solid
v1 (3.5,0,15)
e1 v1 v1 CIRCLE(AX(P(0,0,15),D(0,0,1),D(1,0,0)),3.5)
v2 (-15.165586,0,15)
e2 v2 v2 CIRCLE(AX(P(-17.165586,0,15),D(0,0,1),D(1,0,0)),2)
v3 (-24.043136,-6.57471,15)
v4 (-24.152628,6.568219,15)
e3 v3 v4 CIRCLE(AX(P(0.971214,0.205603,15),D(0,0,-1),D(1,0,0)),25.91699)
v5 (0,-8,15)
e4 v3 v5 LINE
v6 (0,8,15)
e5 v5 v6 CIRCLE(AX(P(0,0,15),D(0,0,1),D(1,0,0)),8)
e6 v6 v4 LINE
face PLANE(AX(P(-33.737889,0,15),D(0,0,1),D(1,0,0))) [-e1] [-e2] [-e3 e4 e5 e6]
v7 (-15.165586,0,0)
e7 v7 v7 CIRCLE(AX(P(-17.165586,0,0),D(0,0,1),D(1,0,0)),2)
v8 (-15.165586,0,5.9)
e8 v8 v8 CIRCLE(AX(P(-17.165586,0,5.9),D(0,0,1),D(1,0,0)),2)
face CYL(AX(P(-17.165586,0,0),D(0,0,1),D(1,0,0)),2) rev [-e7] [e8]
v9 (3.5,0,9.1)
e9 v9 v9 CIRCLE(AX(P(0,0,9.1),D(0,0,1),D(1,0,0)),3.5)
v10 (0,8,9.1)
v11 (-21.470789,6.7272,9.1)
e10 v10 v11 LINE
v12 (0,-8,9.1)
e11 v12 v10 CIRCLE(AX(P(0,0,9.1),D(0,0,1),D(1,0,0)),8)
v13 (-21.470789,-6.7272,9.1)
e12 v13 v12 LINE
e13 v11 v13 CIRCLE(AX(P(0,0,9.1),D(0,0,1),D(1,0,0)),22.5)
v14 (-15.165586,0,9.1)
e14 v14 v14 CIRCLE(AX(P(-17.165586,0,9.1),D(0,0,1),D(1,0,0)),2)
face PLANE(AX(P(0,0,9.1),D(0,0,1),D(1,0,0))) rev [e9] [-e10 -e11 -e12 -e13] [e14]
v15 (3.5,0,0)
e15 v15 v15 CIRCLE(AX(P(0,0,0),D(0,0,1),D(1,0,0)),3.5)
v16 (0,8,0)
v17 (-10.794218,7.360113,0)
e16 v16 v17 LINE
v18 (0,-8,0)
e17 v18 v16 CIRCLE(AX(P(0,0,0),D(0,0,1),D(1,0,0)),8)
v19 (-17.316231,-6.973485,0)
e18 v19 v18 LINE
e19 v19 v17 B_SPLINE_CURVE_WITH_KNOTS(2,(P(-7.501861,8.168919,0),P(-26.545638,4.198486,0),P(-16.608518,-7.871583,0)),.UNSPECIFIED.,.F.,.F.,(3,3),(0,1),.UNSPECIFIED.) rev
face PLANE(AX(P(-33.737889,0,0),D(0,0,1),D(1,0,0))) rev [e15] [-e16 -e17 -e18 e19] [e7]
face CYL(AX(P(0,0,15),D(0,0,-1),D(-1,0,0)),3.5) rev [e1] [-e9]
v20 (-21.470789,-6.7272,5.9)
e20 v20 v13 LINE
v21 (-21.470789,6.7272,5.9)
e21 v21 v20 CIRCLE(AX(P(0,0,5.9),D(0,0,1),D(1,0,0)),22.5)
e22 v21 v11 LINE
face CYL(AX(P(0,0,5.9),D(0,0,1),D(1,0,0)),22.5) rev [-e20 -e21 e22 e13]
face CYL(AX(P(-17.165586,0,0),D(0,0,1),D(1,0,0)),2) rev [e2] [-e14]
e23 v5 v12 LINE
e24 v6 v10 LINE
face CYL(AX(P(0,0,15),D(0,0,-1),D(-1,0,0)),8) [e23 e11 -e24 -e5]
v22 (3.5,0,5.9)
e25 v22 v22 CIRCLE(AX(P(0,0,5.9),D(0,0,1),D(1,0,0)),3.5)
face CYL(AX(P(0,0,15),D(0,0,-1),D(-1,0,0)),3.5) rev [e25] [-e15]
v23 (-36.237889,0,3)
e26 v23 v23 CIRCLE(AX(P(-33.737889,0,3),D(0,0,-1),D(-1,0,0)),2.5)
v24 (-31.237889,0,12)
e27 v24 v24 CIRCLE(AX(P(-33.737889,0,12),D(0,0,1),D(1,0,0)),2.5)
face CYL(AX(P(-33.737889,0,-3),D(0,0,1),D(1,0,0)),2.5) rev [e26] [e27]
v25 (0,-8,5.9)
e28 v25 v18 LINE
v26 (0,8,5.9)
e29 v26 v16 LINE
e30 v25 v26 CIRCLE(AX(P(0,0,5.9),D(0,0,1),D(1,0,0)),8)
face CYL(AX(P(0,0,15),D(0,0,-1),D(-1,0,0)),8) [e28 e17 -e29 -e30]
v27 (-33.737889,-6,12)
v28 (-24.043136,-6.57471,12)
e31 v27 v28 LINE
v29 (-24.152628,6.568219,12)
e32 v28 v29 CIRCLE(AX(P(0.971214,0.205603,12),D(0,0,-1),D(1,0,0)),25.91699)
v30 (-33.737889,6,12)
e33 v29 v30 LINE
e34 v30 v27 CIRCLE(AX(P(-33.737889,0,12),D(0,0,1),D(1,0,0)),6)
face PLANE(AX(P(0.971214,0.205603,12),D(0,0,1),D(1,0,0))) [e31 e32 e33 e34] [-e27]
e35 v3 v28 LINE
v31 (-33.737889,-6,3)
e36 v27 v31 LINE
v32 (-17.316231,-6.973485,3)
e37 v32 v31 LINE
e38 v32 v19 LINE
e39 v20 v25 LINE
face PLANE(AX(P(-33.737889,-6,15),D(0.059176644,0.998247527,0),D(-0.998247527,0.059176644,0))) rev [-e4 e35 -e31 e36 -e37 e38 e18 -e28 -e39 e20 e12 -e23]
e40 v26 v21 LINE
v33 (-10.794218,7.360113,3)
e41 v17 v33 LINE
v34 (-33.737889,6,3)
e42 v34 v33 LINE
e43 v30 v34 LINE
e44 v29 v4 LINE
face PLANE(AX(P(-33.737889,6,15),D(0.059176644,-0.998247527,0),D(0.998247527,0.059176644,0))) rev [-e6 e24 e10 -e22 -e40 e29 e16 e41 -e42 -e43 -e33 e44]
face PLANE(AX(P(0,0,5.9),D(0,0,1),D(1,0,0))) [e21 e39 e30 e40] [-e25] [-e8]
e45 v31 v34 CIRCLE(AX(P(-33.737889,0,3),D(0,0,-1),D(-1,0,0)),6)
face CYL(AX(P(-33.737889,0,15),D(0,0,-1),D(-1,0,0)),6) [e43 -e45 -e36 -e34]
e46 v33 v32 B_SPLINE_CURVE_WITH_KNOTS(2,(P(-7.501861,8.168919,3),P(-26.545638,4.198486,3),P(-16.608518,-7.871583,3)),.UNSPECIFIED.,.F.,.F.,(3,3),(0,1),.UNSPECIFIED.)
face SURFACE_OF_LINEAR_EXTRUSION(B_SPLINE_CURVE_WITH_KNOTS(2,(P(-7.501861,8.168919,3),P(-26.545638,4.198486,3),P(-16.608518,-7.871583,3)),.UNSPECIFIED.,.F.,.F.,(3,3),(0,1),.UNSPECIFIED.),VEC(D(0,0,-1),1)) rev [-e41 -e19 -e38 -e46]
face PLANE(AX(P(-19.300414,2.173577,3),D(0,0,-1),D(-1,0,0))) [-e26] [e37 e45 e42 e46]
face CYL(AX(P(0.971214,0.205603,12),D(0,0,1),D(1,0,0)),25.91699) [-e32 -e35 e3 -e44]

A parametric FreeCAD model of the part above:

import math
import FreeCAD as App
import Part
import Sketcher

V = App.Vector

doc = App.newDocument("Part")
body = doc.addObject("PartDesign::Body", "Body")

# Sketch on XY plane
sketch1 = body.newObject("Sketcher::SketchObject", "Sketch")
sketch1.AttachmentSupport = (doc.getObject("XY_Plane"), [""])
sketch1.MapMode = "FlatFace"
sketch1.addGeometry([
    Part.LineSegment(V(0, 8, 0), V(-33.7, 6, 0)),  # 0
    Part.ArcOfCircle(Part.Circle(V(-33.7, 0, 0), V(0, 0, 1), 6), math.radians(90), math.radians(270)),  # 1
    Part.LineSegment(V(-33.7, -6, 0), V(0, -8, 0)),  # 2
    Part.ArcOfCircle(Part.Circle(V(0, 0, 0), V(0, 0, 1), 8), math.radians(-90), math.radians(90)),  # 3
    Part.Circle(V(0, 0, 0), V(0, 0, 1), 3.5),  # 4
], False)
sketch1.addConstraint([
    Sketcher.Constraint("Coincident", 0, 2, 1, 1),
    Sketcher.Constraint("Coincident", 1, 2, 2, 1),
    Sketcher.Constraint("Coincident", 2, 2, 3, 1),
    Sketcher.Constraint("Coincident", 3, 2, 0, 1),
    Sketcher.Constraint("Coincident", 3, 3, -1, 1),
    Sketcher.Constraint("Coincident", 4, 3, -1, 1),
    Sketcher.Constraint("Symmetric", 0, 2, 1, 2, -1),
    Sketcher.Constraint("PointOnObject", 2, 2, -2),
    Sketcher.Constraint("PointOnObject", 3, 2, -2),
    Sketcher.Constraint("Vertical", 1, 3, 0, 2),
    Sketcher.Constraint("Diameter", 4, 7.0),
    Sketcher.Constraint("Radius", 1, 6.0),
    Sketcher.Constraint("Radius", 3, 8.0),
    Sketcher.Constraint("DistanceX", 1, 3, -1, 1, 33.737889),
])
pad1 = body.newObject("PartDesign::Pad", "Pad")
pad1.Profile = sketch1
pad1.Length = 15

# Sketch on XY plane
sketch2 = body.newObject("Sketcher::SketchObject", "Sketch001")
sketch2.AttachmentSupport = (doc.getObject("XY_Plane"), [""])
sketch2.MapMode = "FlatFace"
sketch2.AttachmentOffset = App.Placement(V(0, 0, 9.1), App.Rotation())
sketch2.addGeometry([
    Part.LineSegment(V(-0.6, 8, 0), V(-21.5, 6.7, 0)),  # 0
    Part.ArcOfCircle(Part.Circle(V(0, 0, 0), V(0, 0, 1), 22.5), math.radians(163), math.radians(197)),  # 1
    Part.LineSegment(V(-21.5, -6.7, 0), V(-0.6, -8, 0)),  # 2
    Part.LineSegment(V(-0.6, -8, 0), V(-0.6, -11.6, 0)),  # 3
    Part.LineSegment(V(-0.6, -11.6, 0), V(11.5, -11.6, 0)),  # 4
    Part.LineSegment(V(11.5, -11.6, 0), V(11.5, 12.5, 0)),  # 5
    Part.LineSegment(V(11.5, 12.5, 0), V(-0.6, 12.5, 0)),  # 6
    Part.LineSegment(V(-0.6, 12.5, 0), V(-0.6, 8, 0)),  # 7
], False)
sketch2.addConstraint([
    Sketcher.Constraint("Coincident", 0, 2, 1, 1),
    Sketcher.Constraint("Coincident", 1, 2, 2, 1),
    Sketcher.Constraint("Coincident", 2, 2, 3, 1),
    Sketcher.Constraint("Coincident", 3, 2, 4, 1),
    Sketcher.Constraint("Coincident", 4, 2, 5, 1),
    Sketcher.Constraint("Coincident", 5, 2, 6, 1),
    Sketcher.Constraint("Coincident", 6, 2, 7, 1),
    Sketcher.Constraint("Coincident", 7, 2, 0, 1),
    Sketcher.Constraint("Vertical", 3),
    Sketcher.Constraint("Horizontal", 4),
    Sketcher.Constraint("Vertical", 5),
    Sketcher.Constraint("Horizontal", 6),
    Sketcher.Constraint("Vertical", 7),
    Sketcher.Constraint("Coincident", 1, 3, -1, 1),
    Sketcher.Constraint("Symmetric", 2, 2, 7, 2, -1),
    Sketcher.Constraint("Vertical", 0, 2, 1, 2),
    Sketcher.Constraint("Radius", 1, 22.5),
    Sketcher.Constraint("DistanceY", 5, 1, 5, 2, 24.048362),
    Sketcher.Constraint("DistanceY", -1, 1, 0, 2, 6.7272),
    Sketcher.Constraint("DistanceY", 2, 2, -1, 1, 7.973601),
    Sketcher.Constraint("DistanceX", 4, 1, 4, 2, 12.181053),
    Sketcher.Constraint("DistanceY", 3, 2, 3, 1, 3.609986),
    Sketcher.Constraint("Distance", 0, 20.858685),
])
pocket1 = body.newObject("PartDesign::Pocket", "Pocket")
pocket1.Profile = sketch2
pocket1.Length = 3.2

# Sketch on XY plane
sketch3 = body.newObject("Sketcher::SketchObject", "Sketch002")
sketch3.AttachmentSupport = (doc.getObject("XY_Plane"), [""])
sketch3.MapMode = "FlatFace"
sketch3.AttachmentOffset = App.Placement(V(0, 0, 15), App.Rotation())
sketch3.addGeometry([
    Part.LineSegment(V(-23, 9, 0), V(-59, 9, 0)),
    Part.LineSegment(V(-59, 9, 0), V(-59, -9, 0)),
    Part.LineSegment(V(-59, -9, 0), V(-23, -9, 0)),
    Part.ArcOfCircle(Part.Circle(V(1, 0, 0), V(0, 0, 1), 26), math.radians(159), math.radians(201)),
], False)
sketch3.addConstraint([
    Sketcher.Constraint("Coincident", 0, 2, 1, 1),
    Sketcher.Constraint("Coincident", 1, 2, 2, 1),
    Sketcher.Constraint("Coincident", 2, 2, 3, 2),
    Sketcher.Constraint("Coincident", 3, 1, 0, 1),
    Sketcher.Constraint("Horizontal", 0),
    Sketcher.Constraint("Vertical", 1),
    Sketcher.Constraint("Horizontal", 2),
    Sketcher.Constraint("Vertical", 2, 2, 3, 1),
    Sketcher.Constraint("Radius", 3, 25.91699),
    Sketcher.Constraint("DistanceX", 0, 2, 0, 1, 35.295243),
    Sketcher.Constraint("DistanceY", 1, 2, 1, 1, 18.230164),
    Sketcher.Constraint("DistanceY", 1, 2, -1, 1, 8.909479),
    Sketcher.Constraint("DistanceX", 2, 2, -1, 1, 23.289982),
])
pocket2 = body.newObject("PartDesign::Pocket", "Pocket001")
pocket2.Profile = sketch3
pocket2.Length = 3

# Sketch on XY plane
sketch4 = body.newObject("Sketcher::SketchObject", "Sketch003")
sketch4.AttachmentSupport = (doc.getObject("XY_Plane"), [""])
sketch4.MapMode = "FlatFace"
sketch4.addGeometry([
    Part.LineSegment(V(-7.501861, 9.22549, 0), V(-7.501861, 8.168919, 0)),  # 0
    Part.BSplineCurve([V(-7.501861, 8.168919, 0), V(-26.545638, 4.198486, 0), V(-16.608518, -7.871583, 0)], [3, 3], [0, 1], False, 2, [1, 1, 1], False),  # 1
    Part.LineSegment(V(-16.608518, -7.871583, 0), V(-16.608518, -10.745771, 0)),  # 2
    Part.LineSegment(V(-16.608518, -10.745771, 0), V(-56.423562, -10.745771, 0)),  # 3
    Part.LineSegment(V(-56.423562, -10.745771, 0), V(-56.423562, 9.22549, 0)),  # 4
    Part.LineSegment(V(-56.423562, 9.22549, 0), V(-7.501861, 9.22549, 0)),  # 5
], False)
sketch4.addConstraint([
    Sketcher.Constraint("Block", 1),
    Sketcher.Constraint("Coincident", 0, 2, 1, 1),
    Sketcher.Constraint("Coincident", 1, 2, 2, 1),
    Sketcher.Constraint("Coincident", 2, 2, 3, 1),
    Sketcher.Constraint("Coincident", 3, 2, 4, 1),
    Sketcher.Constraint("Coincident", 4, 2, 5, 1),
    Sketcher.Constraint("Coincident", 5, 2, 0, 1),
    Sketcher.Constraint("Vertical", 0),
    Sketcher.Constraint("Vertical", 2),
    Sketcher.Constraint("Horizontal", 3),
    Sketcher.Constraint("Vertical", 4),
    Sketcher.Constraint("Horizontal", 5),
    Sketcher.Constraint("DistanceX", 5, 1, 5, 2, 48.921701),
    Sketcher.Constraint("DistanceY", 0, 2, 0, 1, 1.056571),
    Sketcher.Constraint("DistanceY", 2, 2, 2, 1, 2.874188),
])
pocket3 = body.newObject("PartDesign::Pocket", "Pocket002")
pocket3.Profile = sketch4
pocket3.Length = 3
pocket3.Reversed = True

# Sketch on XY plane
sketch5 = body.newObject("Sketcher::SketchObject", "Sketch004")
sketch5.AttachmentSupport = (doc.getObject("XY_Plane"), [""])
sketch5.MapMode = "FlatFace"
sketch5.AttachmentOffset = App.Placement(V(0, 0, 12), App.Rotation())
sketch5.addGeometry(Part.Circle(V(-33.7, 0, 0), V(0, 0, 1), 2.5), False)
sketch5.addConstraint([
    Sketcher.Constraint("PointOnObject", 0, 3, -1),
    Sketcher.Constraint("Diameter", 0, 5.0),
    Sketcher.Constraint("DistanceX", 0, 3, -1, 1, 33.737889),
])
pocket4 = body.newObject("PartDesign::Pocket", "Pocket003")
pocket4.Profile = sketch5
pocket4.Length = 15

# Sketch on XY plane
sketch6 = body.newObject("Sketcher::SketchObject", "Sketch005")
sketch6.AttachmentSupport = (doc.getObject("XY_Plane"), [""])
sketch6.MapMode = "FlatFace"
sketch6.AttachmentOffset = App.Placement(V(0, 0, 15), App.Rotation())
sketch6.addGeometry(Part.Circle(V(-17.2, 0, 0), V(0, 0, 1), 2), False)
sketch6.addConstraint([
    Sketcher.Constraint("PointOnObject", 0, 3, -1),
    Sketcher.Constraint("Diameter", 0, 4.0),
    Sketcher.Constraint("DistanceX", 0, 3, -1, 1, 17.165586),
])
pocket5 = body.newObject("PartDesign::Pocket", "Pocket004")
pocket5.Profile = sketch6
pocket5.Length = 15

doc.recompute()
